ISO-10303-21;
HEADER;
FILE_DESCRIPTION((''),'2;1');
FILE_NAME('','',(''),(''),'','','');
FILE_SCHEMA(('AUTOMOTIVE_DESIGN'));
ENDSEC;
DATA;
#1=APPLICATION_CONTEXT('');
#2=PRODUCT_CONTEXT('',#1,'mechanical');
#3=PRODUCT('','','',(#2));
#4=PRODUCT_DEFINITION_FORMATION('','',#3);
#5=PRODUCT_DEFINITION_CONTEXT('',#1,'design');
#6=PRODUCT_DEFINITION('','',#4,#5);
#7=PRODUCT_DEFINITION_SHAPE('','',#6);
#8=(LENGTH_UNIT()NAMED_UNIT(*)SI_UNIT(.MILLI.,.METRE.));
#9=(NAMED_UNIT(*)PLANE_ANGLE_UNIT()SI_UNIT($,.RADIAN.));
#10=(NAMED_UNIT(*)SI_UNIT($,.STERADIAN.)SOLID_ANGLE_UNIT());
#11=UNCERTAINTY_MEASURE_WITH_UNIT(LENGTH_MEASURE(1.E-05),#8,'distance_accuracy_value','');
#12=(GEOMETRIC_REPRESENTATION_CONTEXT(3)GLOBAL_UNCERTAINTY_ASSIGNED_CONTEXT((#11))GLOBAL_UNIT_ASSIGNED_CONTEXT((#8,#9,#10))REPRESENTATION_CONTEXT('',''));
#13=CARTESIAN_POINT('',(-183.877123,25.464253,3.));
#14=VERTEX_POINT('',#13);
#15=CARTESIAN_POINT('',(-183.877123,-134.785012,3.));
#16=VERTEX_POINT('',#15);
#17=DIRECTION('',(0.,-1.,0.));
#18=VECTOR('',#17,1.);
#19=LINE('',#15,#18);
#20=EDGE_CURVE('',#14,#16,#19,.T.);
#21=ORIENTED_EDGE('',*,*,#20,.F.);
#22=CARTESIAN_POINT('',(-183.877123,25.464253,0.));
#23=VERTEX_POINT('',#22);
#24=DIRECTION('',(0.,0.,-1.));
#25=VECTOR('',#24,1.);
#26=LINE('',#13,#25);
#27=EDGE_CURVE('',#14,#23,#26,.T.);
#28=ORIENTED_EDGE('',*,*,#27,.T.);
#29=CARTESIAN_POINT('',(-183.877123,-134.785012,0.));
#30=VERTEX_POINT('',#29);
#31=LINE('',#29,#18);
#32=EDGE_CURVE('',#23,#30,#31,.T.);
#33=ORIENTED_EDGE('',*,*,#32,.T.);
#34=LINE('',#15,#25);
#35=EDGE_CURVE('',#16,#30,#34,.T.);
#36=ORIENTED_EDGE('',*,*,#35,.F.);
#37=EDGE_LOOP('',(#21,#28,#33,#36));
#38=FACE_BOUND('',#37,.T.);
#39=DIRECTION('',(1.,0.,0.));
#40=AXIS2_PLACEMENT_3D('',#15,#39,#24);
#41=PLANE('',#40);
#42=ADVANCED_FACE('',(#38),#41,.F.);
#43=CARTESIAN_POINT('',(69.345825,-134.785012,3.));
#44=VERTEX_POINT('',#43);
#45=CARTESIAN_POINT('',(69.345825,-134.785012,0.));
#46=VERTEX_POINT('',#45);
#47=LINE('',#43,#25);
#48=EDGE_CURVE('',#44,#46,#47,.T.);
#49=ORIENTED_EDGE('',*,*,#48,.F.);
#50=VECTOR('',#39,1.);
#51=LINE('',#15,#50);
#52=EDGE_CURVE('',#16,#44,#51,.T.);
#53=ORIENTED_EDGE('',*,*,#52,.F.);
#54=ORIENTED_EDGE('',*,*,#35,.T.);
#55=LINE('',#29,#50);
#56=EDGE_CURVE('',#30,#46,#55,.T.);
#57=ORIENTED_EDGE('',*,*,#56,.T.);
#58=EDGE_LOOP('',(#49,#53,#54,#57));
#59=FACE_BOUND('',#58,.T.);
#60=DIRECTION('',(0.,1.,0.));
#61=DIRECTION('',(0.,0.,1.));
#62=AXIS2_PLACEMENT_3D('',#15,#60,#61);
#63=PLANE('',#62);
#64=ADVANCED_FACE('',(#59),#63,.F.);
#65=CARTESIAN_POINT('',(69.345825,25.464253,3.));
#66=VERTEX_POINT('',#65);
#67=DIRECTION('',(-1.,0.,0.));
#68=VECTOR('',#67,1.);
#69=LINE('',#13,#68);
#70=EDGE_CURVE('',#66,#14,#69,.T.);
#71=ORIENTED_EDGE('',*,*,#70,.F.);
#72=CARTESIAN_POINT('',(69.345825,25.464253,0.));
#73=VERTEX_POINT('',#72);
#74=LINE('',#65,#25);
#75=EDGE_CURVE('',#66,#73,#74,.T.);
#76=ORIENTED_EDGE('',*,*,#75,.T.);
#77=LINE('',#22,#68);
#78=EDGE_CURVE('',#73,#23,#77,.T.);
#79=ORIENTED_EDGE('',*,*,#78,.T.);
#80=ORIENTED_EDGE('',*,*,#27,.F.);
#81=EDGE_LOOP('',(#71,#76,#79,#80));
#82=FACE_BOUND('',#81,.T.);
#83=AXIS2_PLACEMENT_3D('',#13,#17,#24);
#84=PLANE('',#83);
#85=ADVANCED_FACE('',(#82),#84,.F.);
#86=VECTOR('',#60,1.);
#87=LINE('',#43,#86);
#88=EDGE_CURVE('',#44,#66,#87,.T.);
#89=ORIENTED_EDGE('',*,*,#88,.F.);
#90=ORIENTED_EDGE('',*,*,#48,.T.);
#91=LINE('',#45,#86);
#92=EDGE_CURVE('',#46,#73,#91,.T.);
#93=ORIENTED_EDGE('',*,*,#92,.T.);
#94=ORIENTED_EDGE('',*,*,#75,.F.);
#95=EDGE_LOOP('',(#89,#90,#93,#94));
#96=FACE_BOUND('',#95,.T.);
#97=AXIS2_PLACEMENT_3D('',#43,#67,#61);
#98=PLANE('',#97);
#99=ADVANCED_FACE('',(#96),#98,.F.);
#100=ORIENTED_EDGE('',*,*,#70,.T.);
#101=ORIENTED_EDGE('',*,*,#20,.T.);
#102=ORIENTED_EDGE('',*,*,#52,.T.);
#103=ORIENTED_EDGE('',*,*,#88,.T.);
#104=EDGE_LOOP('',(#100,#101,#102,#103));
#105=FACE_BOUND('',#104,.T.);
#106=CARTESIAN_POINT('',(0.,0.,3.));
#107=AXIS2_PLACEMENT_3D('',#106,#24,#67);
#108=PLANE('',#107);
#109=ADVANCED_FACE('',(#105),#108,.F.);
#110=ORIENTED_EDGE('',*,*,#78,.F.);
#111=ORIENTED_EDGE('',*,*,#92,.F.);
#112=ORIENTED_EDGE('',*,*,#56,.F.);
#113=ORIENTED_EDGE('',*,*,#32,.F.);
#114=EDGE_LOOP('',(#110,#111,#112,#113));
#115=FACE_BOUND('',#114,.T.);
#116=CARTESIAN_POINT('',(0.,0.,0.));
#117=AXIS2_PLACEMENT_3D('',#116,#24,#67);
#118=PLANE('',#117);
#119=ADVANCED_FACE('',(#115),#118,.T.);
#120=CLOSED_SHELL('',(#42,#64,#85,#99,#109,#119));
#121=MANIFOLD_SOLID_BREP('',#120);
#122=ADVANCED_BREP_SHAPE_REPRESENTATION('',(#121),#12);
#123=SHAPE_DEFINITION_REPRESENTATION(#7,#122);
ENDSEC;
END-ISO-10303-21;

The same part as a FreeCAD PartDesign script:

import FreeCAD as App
import Part
import Sketcher
from FreeCAD import Vector
Q = App.Units.Quantity


def add_polygon(sketch, points):
    """Adds a closed chain of lines whose ends are joined by coincident constraints."""
    first, n = sketch.GeometryCount, len(points)
    for a, b in zip(points, points[1:] + points[:1]):
        sketch.addGeometry(Part.LineSegment(App.Vector(*a, 0), App.Vector(*b, 0)), False)
    for i in range(n):
        sketch.addConstraint(Sketcher.Constraint("Coincident", first + i, 2, first + (i + 1) % n, 1))

doc = App.newDocument("Part")
params = doc.addObject("Spreadsheet::Sheet", "Params")
for row, (alias, value) in enumerate([
    ("pad1_length", "3 mm"),
], start=1):
    params.set(f"A{row}", alias)
    params.set(f"B{row}", "=" + value)
    params.setAlias(f"B{row}", alias)

body = doc.addObject("PartDesign::Body", "Body")

# Sketch on XY plane
sketch1 = body.newObject("Sketcher::SketchObject", "Sketch")
sketch1.AttachmentSupport = (doc.getObject("XY_Plane"), [""])
sketch1.MapMode = "FlatFace"
add_polygon(sketch1, [(-184, 25), (-184, -135), (69, -135), (69, 25)])  # lines 0-3
sketch1.addConstraint([
    Sketcher.Constraint("Vertical", 0),
    Sketcher.Constraint("Horizontal", 1),
    Sketcher.Constraint("Vertical", 2),
    Sketcher.Constraint("Horizontal", 3),
    Sketcher.Constraint("DistanceX", 1, 1, 1, 2, Q("253.222947 mm")),
    Sketcher.Constraint("DistanceY", 0, 2, 0, 1, Q("160.249265 mm")),
    Sketcher.Constraint("DistanceY", 0, 2, -1, 1, Q("134.785012 mm")),
    Sketcher.Constraint("DistanceX", 0, 2, -1, 1, Q("183.877123 mm")),
])
pad1 = body.newObject("PartDesign::Pad", "Pad")
pad1.Profile = sketch1
pad1.setExpression("Length", "Params.pad1_length")

doc.recompute()
